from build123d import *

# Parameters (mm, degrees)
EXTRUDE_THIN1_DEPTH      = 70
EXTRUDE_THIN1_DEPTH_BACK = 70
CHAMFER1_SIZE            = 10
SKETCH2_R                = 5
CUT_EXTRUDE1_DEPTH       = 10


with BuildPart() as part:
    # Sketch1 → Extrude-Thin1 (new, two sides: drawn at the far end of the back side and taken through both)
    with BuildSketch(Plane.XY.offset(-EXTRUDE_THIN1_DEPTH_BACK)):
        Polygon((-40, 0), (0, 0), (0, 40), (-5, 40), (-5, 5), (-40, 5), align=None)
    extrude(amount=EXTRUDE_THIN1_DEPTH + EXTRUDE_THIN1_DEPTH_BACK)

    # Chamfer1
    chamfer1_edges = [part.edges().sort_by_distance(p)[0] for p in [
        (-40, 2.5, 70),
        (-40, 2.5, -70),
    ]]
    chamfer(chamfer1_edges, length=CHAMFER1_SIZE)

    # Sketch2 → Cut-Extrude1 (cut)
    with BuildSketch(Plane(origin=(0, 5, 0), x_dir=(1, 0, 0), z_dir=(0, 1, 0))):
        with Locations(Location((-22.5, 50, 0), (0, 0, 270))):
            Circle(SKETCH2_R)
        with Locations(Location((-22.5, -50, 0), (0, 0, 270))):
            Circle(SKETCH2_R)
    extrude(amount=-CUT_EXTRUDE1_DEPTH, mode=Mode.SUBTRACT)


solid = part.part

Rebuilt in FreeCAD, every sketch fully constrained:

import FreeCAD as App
import Part
import Sketcher

V = App.Vector
Q = App.Units.Quantity


def edges_at(feature, points):
    """Names of the edges that pass closest to the given points."""
    edges = feature.Shape.Edges
    near = lambda p: min(range(len(edges)), key=lambda i: edges[i].distToShape(Part.Vertex(*p))[0])
    return sorted({f"Edge{near(p) + 1}" for p in points})

doc = App.newDocument("Part")
body = doc.addObject("PartDesign::Body", "Body")

sketch1 = body.newObject("Sketcher::SketchObject", "Sketch")
sketch1.AttachmentSupport = (doc.getObject("XY_Plane"), [""])
sketch1.MapMode = "FlatFace"
sketch1.addGeometry([
    Part.LineSegment(V(-40, 0, 0), V(0, 0, 0)),
    Part.LineSegment(V(0, 0, 0), V(0, 40, 0)),
    Part.LineSegment(V(0, 40, 0), V(-5, 40, 0)),
    Part.LineSegment(V(-5, 40, 0), V(-5, 5, 0)),
    Part.LineSegment(V(-5, 5, 0), V(-40, 5, 0)),
    Part.LineSegment(V(-40, 5, 0), V(-40, 0, 0)),
], False)
sketch1.addConstraint([
    Sketcher.Constraint("Coincident", 0, 2, 1, 1),
    Sketcher.Constraint("Coincident", 1, 2, 2, 1),
    Sketcher.Constraint("Coincident", 2, 2, 3, 1),
    Sketcher.Constraint("Coincident", 3, 2, 4, 1),
    Sketcher.Constraint("Coincident", 4, 2, 5, 1),
    Sketcher.Constraint("Coincident", 5, 2, 0, 1),
    Sketcher.Constraint("Horizontal", 0),
    Sketcher.Constraint("Vertical", 1),
    Sketcher.Constraint("Horizontal", 2),
    Sketcher.Constraint("Vertical", 3),
    Sketcher.Constraint("Horizontal", 4),
    Sketcher.Constraint("Vertical", 5),
    Sketcher.Constraint("Coincident", 0, 2, -1, 1),
    Sketcher.Constraint("Equal", 0, 1),
    Sketcher.Constraint("Equal", 4, 3),
    Sketcher.Constraint("DistanceX", 0, 1, 0, 2, Q("40 mm")),
    Sketcher.Constraint("DistanceX", 2, 2, 2, 1, Q("5 mm")),
])
pad1 = body.newObject("PartDesign::Pad", "Pad")
pad1.Profile = sketch1
pad1.Type = "TwoLengths"
pad1.Length = 70
pad1.Length2 = 70
doc.recompute()

chamfer = body.newObject("PartDesign::Chamfer", "Chamfer")
chamfer.Base = (pad1, edges_at(pad1, [(-40, 2.5, 70), (-40, 2.5, -70)]))
chamfer.Size = 10

sketch2 = body.newObject("Sketcher::SketchObject", "Sketch001")
sketch2.AttachmentSupport = (doc.getObject("XZ_Plane"), [""])
sketch2.MapMode = "FlatFace"
sketch2.AttachmentOffset = App.Placement(V(0, 0, -5), App.Rotation())
sketch2.addGeometry([
    Part.Circle(V(-22, -50, 0), V(0, 0, 1), 5),
    Part.Circle(V(-22, 50, 0), V(0, 0, 1), 5),
], False)
sketch2.addConstraint([
    Sketcher.Constraint("Equal", 0, 1),
    Sketcher.Constraint("Symmetric", 0, 3, 1, 3, -1),
    Sketcher.Constraint("Diameter", 0, Q("10 mm")),
    Sketcher.Constraint("DistanceY", 0, 3, -1, 1, Q("50 mm")),
    Sketcher.Constraint("DistanceX", 0, 3, -1, 1, Q("22.5 mm")),
])
pocket1 = body.newObject("PartDesign::Pocket", "Pocket")
pocket1.Profile = sketch2
pocket1.Length = 10
pocket1.Reversed = True

doc.recompute()
